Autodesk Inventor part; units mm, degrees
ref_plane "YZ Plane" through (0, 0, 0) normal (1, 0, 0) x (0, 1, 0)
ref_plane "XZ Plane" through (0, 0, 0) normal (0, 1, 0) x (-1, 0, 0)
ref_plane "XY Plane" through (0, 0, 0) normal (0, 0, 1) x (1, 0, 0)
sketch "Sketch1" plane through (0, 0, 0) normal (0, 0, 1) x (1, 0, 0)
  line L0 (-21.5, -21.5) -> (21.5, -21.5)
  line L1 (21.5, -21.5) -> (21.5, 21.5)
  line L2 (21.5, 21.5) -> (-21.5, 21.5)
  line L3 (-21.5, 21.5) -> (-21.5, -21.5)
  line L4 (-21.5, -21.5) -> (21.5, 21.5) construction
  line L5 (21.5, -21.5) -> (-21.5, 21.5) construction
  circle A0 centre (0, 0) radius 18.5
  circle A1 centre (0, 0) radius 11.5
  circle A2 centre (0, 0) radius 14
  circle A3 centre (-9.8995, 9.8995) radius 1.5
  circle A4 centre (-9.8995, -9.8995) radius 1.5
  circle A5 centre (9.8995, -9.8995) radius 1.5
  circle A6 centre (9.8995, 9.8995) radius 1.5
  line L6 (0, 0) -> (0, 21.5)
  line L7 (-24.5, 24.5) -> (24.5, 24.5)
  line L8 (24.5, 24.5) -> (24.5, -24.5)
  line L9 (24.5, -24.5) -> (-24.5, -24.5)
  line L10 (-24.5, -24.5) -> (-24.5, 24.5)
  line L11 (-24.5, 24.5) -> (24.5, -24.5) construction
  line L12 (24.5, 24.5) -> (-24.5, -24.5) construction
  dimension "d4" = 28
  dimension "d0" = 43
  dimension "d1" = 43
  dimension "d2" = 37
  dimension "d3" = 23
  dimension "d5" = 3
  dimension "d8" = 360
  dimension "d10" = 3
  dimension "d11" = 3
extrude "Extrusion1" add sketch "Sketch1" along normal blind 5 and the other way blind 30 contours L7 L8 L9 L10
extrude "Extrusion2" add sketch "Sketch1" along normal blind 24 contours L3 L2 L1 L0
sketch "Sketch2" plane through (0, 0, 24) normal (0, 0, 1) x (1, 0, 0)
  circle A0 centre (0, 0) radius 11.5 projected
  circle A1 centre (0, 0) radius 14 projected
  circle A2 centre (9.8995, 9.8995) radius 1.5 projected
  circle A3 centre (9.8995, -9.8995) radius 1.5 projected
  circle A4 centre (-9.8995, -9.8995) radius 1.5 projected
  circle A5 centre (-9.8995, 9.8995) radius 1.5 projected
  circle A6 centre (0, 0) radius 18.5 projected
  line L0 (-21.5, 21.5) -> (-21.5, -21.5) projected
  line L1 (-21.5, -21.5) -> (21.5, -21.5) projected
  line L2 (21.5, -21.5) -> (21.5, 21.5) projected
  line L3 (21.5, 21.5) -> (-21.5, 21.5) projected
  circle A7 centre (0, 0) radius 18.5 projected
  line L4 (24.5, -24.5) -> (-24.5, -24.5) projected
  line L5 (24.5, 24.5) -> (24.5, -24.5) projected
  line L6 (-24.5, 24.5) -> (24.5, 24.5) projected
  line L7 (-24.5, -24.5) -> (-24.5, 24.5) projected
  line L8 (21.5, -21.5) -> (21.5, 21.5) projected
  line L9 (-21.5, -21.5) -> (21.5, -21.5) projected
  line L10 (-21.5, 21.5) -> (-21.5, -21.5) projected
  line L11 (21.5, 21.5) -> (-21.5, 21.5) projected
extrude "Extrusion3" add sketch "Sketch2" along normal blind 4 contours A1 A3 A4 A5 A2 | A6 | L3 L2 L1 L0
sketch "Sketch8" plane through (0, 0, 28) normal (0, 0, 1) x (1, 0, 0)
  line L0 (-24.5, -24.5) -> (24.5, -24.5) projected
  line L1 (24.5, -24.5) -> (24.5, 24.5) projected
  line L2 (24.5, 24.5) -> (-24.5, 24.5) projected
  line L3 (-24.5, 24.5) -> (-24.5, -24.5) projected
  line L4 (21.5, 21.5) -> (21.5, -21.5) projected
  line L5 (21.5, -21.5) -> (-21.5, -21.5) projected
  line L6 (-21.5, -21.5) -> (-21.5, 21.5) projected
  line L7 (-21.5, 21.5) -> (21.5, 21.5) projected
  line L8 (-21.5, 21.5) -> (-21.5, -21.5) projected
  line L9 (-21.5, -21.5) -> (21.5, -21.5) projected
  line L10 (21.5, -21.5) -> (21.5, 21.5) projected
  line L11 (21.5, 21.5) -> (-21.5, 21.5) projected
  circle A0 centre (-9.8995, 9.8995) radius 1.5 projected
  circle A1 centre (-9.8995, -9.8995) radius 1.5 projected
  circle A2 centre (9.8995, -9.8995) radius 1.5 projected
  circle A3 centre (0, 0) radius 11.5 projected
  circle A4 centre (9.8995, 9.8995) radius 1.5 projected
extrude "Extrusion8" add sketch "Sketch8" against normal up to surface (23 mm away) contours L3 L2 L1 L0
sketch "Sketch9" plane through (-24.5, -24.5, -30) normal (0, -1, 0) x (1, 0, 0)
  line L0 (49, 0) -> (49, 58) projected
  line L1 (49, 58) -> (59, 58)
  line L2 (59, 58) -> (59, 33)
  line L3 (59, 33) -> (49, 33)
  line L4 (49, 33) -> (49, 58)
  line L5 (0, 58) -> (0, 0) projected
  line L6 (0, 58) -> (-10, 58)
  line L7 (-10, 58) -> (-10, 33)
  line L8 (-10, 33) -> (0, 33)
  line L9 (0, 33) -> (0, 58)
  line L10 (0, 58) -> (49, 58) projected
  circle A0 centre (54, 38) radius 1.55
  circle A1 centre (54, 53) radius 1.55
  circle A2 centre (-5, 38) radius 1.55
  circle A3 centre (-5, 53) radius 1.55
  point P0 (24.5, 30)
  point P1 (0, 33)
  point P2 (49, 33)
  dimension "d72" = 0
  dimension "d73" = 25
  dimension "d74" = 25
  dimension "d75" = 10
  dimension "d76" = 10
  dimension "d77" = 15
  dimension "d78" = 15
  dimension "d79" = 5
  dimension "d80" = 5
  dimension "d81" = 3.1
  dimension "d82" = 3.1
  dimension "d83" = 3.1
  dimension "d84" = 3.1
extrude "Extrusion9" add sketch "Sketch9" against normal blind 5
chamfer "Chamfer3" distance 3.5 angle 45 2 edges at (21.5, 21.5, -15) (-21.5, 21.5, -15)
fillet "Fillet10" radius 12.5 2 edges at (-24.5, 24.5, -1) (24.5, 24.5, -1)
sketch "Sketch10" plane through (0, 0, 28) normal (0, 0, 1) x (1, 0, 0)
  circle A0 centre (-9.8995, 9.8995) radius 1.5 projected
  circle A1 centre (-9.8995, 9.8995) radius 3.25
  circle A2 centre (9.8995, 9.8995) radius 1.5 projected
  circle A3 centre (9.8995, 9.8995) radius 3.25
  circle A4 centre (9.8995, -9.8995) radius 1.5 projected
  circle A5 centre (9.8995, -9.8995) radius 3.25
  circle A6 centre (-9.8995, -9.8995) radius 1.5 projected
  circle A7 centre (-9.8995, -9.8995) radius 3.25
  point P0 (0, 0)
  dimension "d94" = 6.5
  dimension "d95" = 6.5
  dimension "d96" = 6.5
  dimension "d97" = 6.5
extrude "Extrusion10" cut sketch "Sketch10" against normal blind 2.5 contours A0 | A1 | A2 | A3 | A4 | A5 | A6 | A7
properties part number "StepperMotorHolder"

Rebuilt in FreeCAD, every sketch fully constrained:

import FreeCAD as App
import Part
import Sketcher
from FreeCAD import Vector
Q = App.Units.Quantity


def edges_at(feature, points):
    """Names of the edges that pass closest to the given points."""
    edges = feature.Shape.Edges
    near = lambda p: min(range(len(edges)), key=lambda i: edges[i].distToShape(Part.Vertex(*p))[0])
    return sorted({f"Edge{near(p) + 1}" for p in points})

doc = App.newDocument("Part")
body = doc.addObject("PartDesign::Body", "Body")

sketch1 = body.newObject("Sketcher::SketchObject", "Sketch")
sketch1.AttachmentSupport = (doc.getObject("XY_Plane"), [""])
sketch1.MapMode = "FlatFace"
sketch1.addGeometry(Part.LineSegment(Vector(24.5, 24.5, 0), Vector(-24.5, 24.5, 0)), False)
sketch1.addGeometry(Part.LineSegment(Vector(-24.5, 24.5, 0), Vector(-24.5, -24.5, 0)), False)
sketch1.addGeometry(Part.LineSegment(Vector(-24.5, -24.5, 0), Vector(24.5, -24.5, 0)), False)
sketch1.addGeometry(Part.LineSegment(Vector(24.5, -24.5, 0), Vector(24.5, 24.5, 0)), False)
sketch1.addGeometry(Part.LineSegment(Vector(21.5, -21.5, 0), Vector(-21.5, -21.5, 0)), False)
sketch1.addGeometry(Part.LineSegment(Vector(-21.5, -21.5, 0), Vector(-21.5, 21.5, 0)), False)
sketch1.addGeometry(Part.LineSegment(Vector(-21.5, 21.5, 0), Vector(21.5, 21.5, 0)), False)
sketch1.addGeometry(Part.LineSegment(Vector(21.5, 21.5, 0), Vector(21.5, -21.5, 0)), False)
sketch1.addConstraint(Sketcher.Constraint("Coincident", 0, 2, 1, 1))
sketch1.addConstraint(Sketcher.Constraint("Coincident", 1, 2, 2, 1))
sketch1.addConstraint(Sketcher.Constraint("Coincident", 2, 2, 3, 1))
sketch1.addConstraint(Sketcher.Constraint("Coincident", 3, 2, 0, 1))
sketch1.addConstraint(Sketcher.Constraint("Coincident", 4, 2, 5, 1))
sketch1.addConstraint(Sketcher.Constraint("Coincident", 5, 2, 6, 1))
sketch1.addConstraint(Sketcher.Constraint("Coincident", 6, 2, 7, 1))
sketch1.addConstraint(Sketcher.Constraint("Coincident", 7, 2, 4, 1))
sketch1.addConstraint(Sketcher.Constraint("Horizontal", 0))
sketch1.addConstraint(Sketcher.Constraint("Vertical", 1))
sketch1.addConstraint(Sketcher.Constraint("Horizontal", 2))
sketch1.addConstraint(Sketcher.Constraint("Vertical", 3))
sketch1.addConstraint(Sketcher.Constraint("Horizontal", 4))
sketch1.addConstraint(Sketcher.Constraint("Vertical", 5))
sketch1.addConstraint(Sketcher.Constraint("Horizontal", 6))
sketch1.addConstraint(Sketcher.Constraint("Vertical", 7))
sketch1.addConstraint(Sketcher.Constraint("Symmetric", 0, 2, 2, 2, -1, 1))
sketch1.addConstraint(Sketcher.Constraint("Symmetric", 4, 2, 6, 2, -1, 1))
sketch1.addConstraint(Sketcher.Constraint("Equal", 2, 1))
sketch1.addConstraint(Sketcher.Constraint("Equal", 6, 5))
sketch1.addConstraint(Sketcher.Constraint("DistanceX", 4, 2, 4, 1, Q("43 mm")))
sketch1.addConstraint(Sketcher.Constraint("DistanceX", 1, 2, 4, 2, Q("3 mm")))
pad1 = body.newObject("PartDesign::Pad", "Pad")
pad1.Profile = sketch1
pad1.Type = "TwoLengths"
pad1.Length = 5
pad1.Length2 = 30

sketch2 = body.newObject("Sketcher::SketchObject", "Sketch001")
sketch2.AttachmentSupport = (doc.getObject("XY_Plane"), [""])
sketch2.MapMode = "FlatFace"
sketch2.addGeometry(Part.LineSegment(Vector(-21.5, 21.5, 0), Vector(-21.5, -21.5, 0)), False)
sketch2.addGeometry(Part.LineSegment(Vector(-21.5, -21.5, 0), Vector(21.5, -21.5, 0)), False)
sketch2.addGeometry(Part.LineSegment(Vector(21.5, -21.5, 0), Vector(21.5, 21.5, 0)), False)
sketch2.addGeometry(Part.LineSegment(Vector(21.5, 21.5, 0), Vector(0, 21.5, 0)), False)
sketch2.addGeometry(Part.LineSegment(Vector(0, 21.5, 0), Vector(-21.5, 21.5, 0)), False)
sketch2.addGeometry(Part.Circle(Vector(0, 0, 0), Vector(0, 0, 1), 18.5), False)
sketch2.addConstraint(Sketcher.Constraint("Coincident", 0, 2, 1, 1))
sketch2.addConstraint(Sketcher.Constraint("Coincident", 1, 2, 2, 1))
sketch2.addConstraint(Sketcher.Constraint("Coincident", 2, 2, 3, 1))
sketch2.addConstraint(Sketcher.Constraint("Coincident", 3, 2, 4, 1))
sketch2.addConstraint(Sketcher.Constraint("Coincident", 4, 2, 0, 1))
sketch2.addConstraint(Sketcher.Constraint("Vertical", 0))
sketch2.addConstraint(Sketcher.Constraint("Horizontal", 1))
sketch2.addConstraint(Sketcher.Constraint("Vertical", 2))
sketch2.addConstraint(Sketcher.Constraint("Horizontal", 3))
sketch2.addConstraint(Sketcher.Constraint("Horizontal", 4))
sketch2.addConstraint(Sketcher.Constraint("Coincident", 5, 3, -1, 1))
sketch2.addConstraint(Sketcher.Constraint("Symmetric", 0, 2, 2, 2, -1, 1))
sketch2.addConstraint(Sketcher.Constraint("PointOnObject", 3, 2, -2))
sketch2.addConstraint(Sketcher.Constraint("Equal", 1, 0))
sketch2.addConstraint(Sketcher.Constraint("Diameter", 5, Q("37 mm")))
sketch2.addConstraint(Sketcher.Constraint("DistanceX", 1, 1, 1, 2, Q("43 mm")))
pad2 = body.newObject("PartDesign::Pad", "Pad001")
pad2.Profile = sketch2
pad2.Length = 24

sketch3 = body.newObject("Sketcher::SketchObject", "Sketch002")
sketch3.AttachmentSupport = (doc.getObject("XY_Plane"), [""])
sketch3.MapMode = "FlatFace"
sketch3.AttachmentOffset = App.Placement(Vector(0, 0, 24), App.Rotation())
sketch3.addGeometry(Part.LineSegment(Vector(21.5, 21.5, 0), Vector(-21.5, 21.5, 0)), False)
sketch3.addGeometry(Part.LineSegment(Vector(-21.5, 21.5, 0), Vector(-21.5, -21.5, 0)), False)
sketch3.addGeometry(Part.LineSegment(Vector(-21.5, -21.5, 0), Vector(21.5, -21.5, 0)), False)
sketch3.addGeometry(Part.LineSegment(Vector(21.5, -21.5, 0), Vector(21.5, 21.5, 0)), False)
sketch3.addGeometry(Part.Circle(Vector(9.8995, -9.8995, 0), Vector(0, 0, 1), 1.5), False)
sketch3.addGeometry(Part.Circle(Vector(-9.8995, -9.8995, 0), Vector(0, 0, 1), 1.5), False)
sketch3.addGeometry(Part.Circle(Vector(-9.8995, 9.8995, 0), Vector(0, 0, 1), 1.5), False)
sketch3.addGeometry(Part.Circle(Vector(9.8995, 9.8995, 0), Vector(0, 0, 1), 1.5), False)
sketch3.addGeometry(Part.Circle(Vector(0, 0, 0), Vector(0, 0, 1), 11.5), False)
sketch3.addConstraint(Sketcher.Constraint("Coincident", 0, 2, 1, 1))
sketch3.addConstraint(Sketcher.Constraint("Coincident", 1, 2, 2, 1))
sketch3.addConstraint(Sketcher.Constraint("Coincident", 2, 2, 3, 1))
sketch3.addConstraint(Sketcher.Constraint("Coincident", 3, 2, 0, 1))
sketch3.addConstraint(Sketcher.Constraint("Horizontal", 0))
sketch3.addConstraint(Sketcher.Constraint("Vertical", 1))
sketch3.addConstraint(Sketcher.Constraint("Horizontal", 2))
sketch3.addConstraint(Sketcher.Constraint("Vertical", 3))
sketch3.addConstraint(Sketcher.Constraint("Coincident", 8, 3, -1, 1))
sketch3.addConstraint(Sketcher.Constraint("Equal", 4, 5))
sketch3.addConstraint(Sketcher.Constraint("Equal", 5, 6))
sketch3.addConstraint(Sketcher.Constraint("Equal", 6, 7))
sketch3.addConstraint(Sketcher.Constraint("Symmetric", 4, 3, 6, 3, -1, 1))
sketch3.addConstraint(Sketcher.Constraint("Symmetric", 5, 3, 7, 3, -1, 1))
sketch3.addConstraint(Sketcher.Constraint("Symmetric", 0, 2, 2, 2, -1, 1))
sketch3.addConstraint(Sketcher.Constraint("Symmetric", 4, 3, 5, 3, -2))
sketch3.addConstraint(Sketcher.Constraint("Equal", 2, 1))
sketch3.addConstraint(Sketcher.Constraint("Diameter", 4, Q("3 mm")))
sketch3.addConstraint(Sketcher.Constraint("Diameter", 8, Q("23 mm")))
sketch3.addConstraint(Sketcher.Constraint("DistanceX", 0, 2, 0, 1, Q("43 mm")))
sketch3.addConstraint(Sketcher.Constraint("DistanceX", 5, 3, 4, 3, Q("19.799 mm")))
sketch3.addConstraint(Sketcher.Constraint("DistanceY", 5, 3, 6, 3, Q("19.799 mm")))
pad3 = body.newObject("PartDesign::Pad", "Pad002")
pad3.Profile = sketch3
pad3.Length = 4

sketch4 = body.newObject("Sketcher::SketchObject", "Sketch003")
sketch4.AttachmentSupport = (doc.getObject("XY_Plane"), [""])
sketch4.MapMode = "FlatFace"
sketch4.AttachmentOffset = App.Placement(Vector(0, 0, 28), App.Rotation())
sketch4.addGeometry(Part.LineSegment(Vector(-24.5, 24.5, 0), Vector(-24.5, -24.5, 0)), False)
sketch4.addGeometry(Part.LineSegment(Vector(-24.5, -24.5, 0), Vector(24.5, -24.5, 0)), False)
sketch4.addGeometry(Part.LineSegment(Vector(24.5, -24.5, 0), Vector(24.5, 24.5, 0)), False)
sketch4.addGeometry(Part.LineSegment(Vector(24.5, 24.5, 0), Vector(-24.5, 24.5, 0)), False)
sketch4.addGeometry(Part.LineSegment(Vector(-21.5, 21.5, 0), Vector(21.5, 21.5, 0)), False)
sketch4.addGeometry(Part.LineSegment(Vector(21.5, 21.5, 0), Vector(21.5, -21.5, 0)), False)
sketch4.addGeometry(Part.LineSegment(Vector(21.5, -21.5, 0), Vector(-21.5, -21.5, 0)), False)
sketch4.addGeometry(Part.LineSegment(Vector(-21.5, -21.5, 0), Vector(-21.5, 21.5, 0)), False)
sketch4.addConstraint(Sketcher.Constraint("Coincident", 0, 2, 1, 1))
sketch4.addConstraint(Sketcher.Constraint("Coincident", 1, 2, 2, 1))
sketch4.addConstraint(Sketcher.Constraint("Coincident", 2, 2, 3, 1))
sketch4.addConstraint(Sketcher.Constraint("Coincident", 3, 2, 0, 1))
sketch4.addConstraint(Sketcher.Constraint("Coincident", 4, 2, 5, 1))
sketch4.addConstraint(Sketcher.Constraint("Coincident", 5, 2, 6, 1))
sketch4.addConstraint(Sketcher.Constraint("Coincident", 6, 2, 7, 1))
sketch4.addConstraint(Sketcher.Constraint("Coincident", 7, 2, 4, 1))
sketch4.addConstraint(Sketcher.Constraint("Vertical", 0))
sketch4.addConstraint(Sketcher.Constraint("Horizontal", 1))
sketch4.addConstraint(Sketcher.Constraint("Vertical", 2))
sketch4.addConstraint(Sketcher.Constraint("Horizontal", 3))
sketch4.addConstraint(Sketcher.Constraint("Horizontal", 4))
sketch4.addConstraint(Sketcher.Constraint("Vertical", 5))
sketch4.addConstraint(Sketcher.Constraint("Horizontal", 6))
sketch4.addConstraint(Sketcher.Constraint("Vertical", 7))
sketch4.addConstraint(Sketcher.Constraint("Symmetric", 0, 2, 2, 2, -1, 1))
sketch4.addConstraint(Sketcher.Constraint("Symmetric", 4, 2, 6, 2, -1, 1))
sketch4.addConstraint(Sketcher.Constraint("Equal", 3, 0))
sketch4.addConstraint(Sketcher.Constraint("Equal", 6, 5))
sketch4.addConstraint(Sketcher.Constraint("DistanceX", 1, 1, 1, 2, Q("49 mm")))
sketch4.addConstraint(Sketcher.Constraint("DistanceX", 4, 1, 4, 2, Q("43 mm")))
pad4 = body.newObject("PartDesign::Pad", "Pad003")
pad4.Profile = sketch4
pad4.Length = 23
pad4.Reversed = True

sketch5 = body.newObject("Sketcher::SketchObject", "Sketch004")
sketch5.AttachmentSupport = (doc.getObject("XZ_Plane"), [""])
sketch5.MapMode = "FlatFace"
sketch5.AttachmentOffset = App.Placement(Vector(0, 0, 24.5), App.Rotation())
sketch5.addGeometry(Part.LineSegment(Vector(-24.5, 3, 0), Vector(-24.5, 28, 0)), False)
sketch5.addGeometry(Part.LineSegment(Vector(-24.5, 28, 0), Vector(-34.5, 28, 0)), False)
sketch5.addGeometry(Part.LineSegment(Vector(-34.5, 28, 0), Vector(-34.5, 3, 0)), False)
sketch5.addGeometry(Part.LineSegment(Vector(-34.5, 3, 0), Vector(-24.5, 3, 0)), False)
sketch5.addGeometry(Part.Circle(Vector(-29.5, 8, 0), Vector(0, 0, 1), 1.55), False)
sketch5.addGeometry(Part.Circle(Vector(-29.5, 23, 0), Vector(0, 0, 1), 1.55), False)
sketch5.addGeometry(Part.LineSegment(Vector(24.5, 28, 0), Vector(24.5, 3, 0)), False)
sketch5.addGeometry(Part.LineSegment(Vector(24.5, 3, 0), Vector(34.5, 3, 0)), False)
sketch5.addGeometry(Part.LineSegment(Vector(34.5, 3, 0), Vector(34.5, 28, 0)), False)
sketch5.addGeometry(Part.LineSegment(Vector(34.5, 28, 0), Vector(24.5, 28, 0)), False)
sketch5.addGeometry(Part.Circle(Vector(29.5, 8, 0), Vector(0, 0, 1), 1.55), False)
sketch5.addGeometry(Part.Circle(Vector(29.5, 23, 0), Vector(0, 0, 1), 1.55), False)
sketch5.addConstraint(Sketcher.Constraint("Coincident", 0, 2, 1, 1))
sketch5.addConstraint(Sketcher.Constraint("Coincident", 1, 2, 2, 1))
sketch5.addConstraint(Sketcher.Constraint("Coincident", 2, 2, 3, 1))
sketch5.addConstraint(Sketcher.Constraint("Coincident", 3, 2, 0, 1))
sketch5.addConstraint(Sketcher.Constraint("Coincident", 6, 2, 7, 1))
sketch5.addConstraint(Sketcher.Constraint("Coincident", 7, 2, 8, 1))
sketch5.addConstraint(Sketcher.Constraint("Coincident", 8, 2, 9, 1))
sketch5.addConstraint(Sketcher.Constraint("Coincident", 9, 2, 6, 1))
sketch5.addConstraint(Sketcher.Constraint("Vertical", 0))
sketch5.addConstraint(Sketcher.Constraint("Horizontal", 1))
sketch5.addConstraint(Sketcher.Constraint("Vertical", 2))
sketch5.addConstraint(Sketcher.Constraint("Horizontal", 3))
sketch5.addConstraint(Sketcher.Constraint("Vertical", 6))
sketch5.addConstraint(Sketcher.Constraint("Horizontal", 7))
sketch5.addConstraint(Sketcher.Constraint("Vertical", 8))
sketch5.addConstraint(Sketcher.Constraint("Horizontal", 9))
sketch5.addConstraint(Sketcher.Constraint("Equal", 4, 5))
sketch5.addConstraint(Sketcher.Constraint("Equal", 5, 10))
sketch5.addConstraint(Sketcher.Constraint("Equal", 10, 11))
sketch5.addConstraint(Sketcher.Constraint("Symmetric", 4, 3, 10, 3, -2))
sketch5.addConstraint(Sketcher.Constraint("Symmetric", 5, 3, 11, 3, -2))
sketch5.addConstraint(Sketcher.Constraint("Symmetric", 3, 2, 6, 2, -2))
sketch5.addConstraint(Sketcher.Constraint("Symmetric", 1, 2, 8, 2, -2))
sketch5.addConstraint(Sketcher.Constraint("Vertical", 4, 3, 5, 3))
sketch5.addConstraint(Sketcher.Constraint("Diameter", 4, Q("3.1 mm")))
sketch5.addConstraint(Sketcher.Constraint("DistanceX", 1, 2, 1, 1, Q("10 mm")))
sketch5.addConstraint(Sketcher.Constraint("DistanceY", 0, 1, 0, 2, Q("25 mm")))
sketch5.addConstraint(Sketcher.Constraint("DistanceY", 4, 3, 5, 3, Q("15 mm")))
sketch5.addConstraint(Sketcher.Constraint("DistanceX", 5, 3, 0, 2, Q("5 mm")))
sketch5.addConstraint(Sketcher.Constraint("DistanceY", 5, 3, 0, 2, Q("5 mm")))
sketch5.addConstraint(Sketcher.Constraint("DistanceY", -1, 1, 4, 3, Q("8 mm")))
sketch5.addConstraint(Sketcher.Constraint("DistanceX", 4, 3, 10, 3, Q("59 mm")))
pad5 = body.newObject("PartDesign::Pad", "Pad004")
pad5.Profile = sketch5
pad5.Length = 5
pad5.Reversed = True
doc.recompute()

chamfer = body.newObject("PartDesign::Chamfer", "Chamfer")
chamfer.Base = (pad5, edges_at(pad5, [(21.5, 21.5, -15), (-21.5, 21.5, -15)]))
chamfer.Size = 3.5
doc.recompute()

fillet = body.newObject("PartDesign::Fillet", "Fillet")
fillet.Base = (chamfer, edges_at(chamfer, [(-24.5, 24.5, -1), (24.5, 24.5, -1)]))
fillet.Radius = 12.5

sketch6 = body.newObject("Sketcher::SketchObject", "Sketch005")
sketch6.AttachmentSupport = (doc.getObject("XY_Plane"), [""])
sketch6.MapMode = "FlatFace"
sketch6.AttachmentOffset = App.Placement(Vector(0, 0, 28), App.Rotation())
sketch6.addGeometry(Part.Circle(Vector(-9.8995, 9.8995, 0), Vector(0, 0, 1), 3.25), False)
sketch6.addGeometry(Part.Circle(Vector(9.8995, 9.8995, 0), Vector(0, 0, 1), 3.25), False)
sketch6.addGeometry(Part.Circle(Vector(9.8995, -9.8995, 0), Vector(0, 0, 1), 3.25), False)
sketch6.addGeometry(Part.Circle(Vector(-9.8995, -9.8995, 0), Vector(0, 0, 1), 3.25), False)
sketch6.addConstraint(Sketcher.Constraint("Equal", 0, 1))
sketch6.addConstraint(Sketcher.Constraint("Equal", 1, 2))
sketch6.addConstraint(Sketcher.Constraint("Equal", 2, 3))
sketch6.addConstraint(Sketcher.Constraint("Symmetric", 0, 3, 2, 3, -1, 1))
sketch6.addConstraint(Sketcher.Constraint("Symmetric", 1, 3, 3, 3, -1, 1))
sketch6.addConstraint(Sketcher.Constraint("Symmetric", 0, 3, 1, 3, -2))
sketch6.addConstraint(Sketcher.Constraint("Diameter", 0, Q("6.5 mm")))
sketch6.addConstraint(Sketcher.Constraint("DistanceX", 0, 3, 1, 3, Q("19.799 mm")))
sketch6.addConstraint(Sketcher.Constraint("DistanceY", 2, 3, 1, 3, Q("19.799 mm")))
pocket1 = body.newObject("PartDesign::Pocket", "Pocket")
pocket1.Profile = sketch6
pocket1.Length = 2.5

doc.recompute()
